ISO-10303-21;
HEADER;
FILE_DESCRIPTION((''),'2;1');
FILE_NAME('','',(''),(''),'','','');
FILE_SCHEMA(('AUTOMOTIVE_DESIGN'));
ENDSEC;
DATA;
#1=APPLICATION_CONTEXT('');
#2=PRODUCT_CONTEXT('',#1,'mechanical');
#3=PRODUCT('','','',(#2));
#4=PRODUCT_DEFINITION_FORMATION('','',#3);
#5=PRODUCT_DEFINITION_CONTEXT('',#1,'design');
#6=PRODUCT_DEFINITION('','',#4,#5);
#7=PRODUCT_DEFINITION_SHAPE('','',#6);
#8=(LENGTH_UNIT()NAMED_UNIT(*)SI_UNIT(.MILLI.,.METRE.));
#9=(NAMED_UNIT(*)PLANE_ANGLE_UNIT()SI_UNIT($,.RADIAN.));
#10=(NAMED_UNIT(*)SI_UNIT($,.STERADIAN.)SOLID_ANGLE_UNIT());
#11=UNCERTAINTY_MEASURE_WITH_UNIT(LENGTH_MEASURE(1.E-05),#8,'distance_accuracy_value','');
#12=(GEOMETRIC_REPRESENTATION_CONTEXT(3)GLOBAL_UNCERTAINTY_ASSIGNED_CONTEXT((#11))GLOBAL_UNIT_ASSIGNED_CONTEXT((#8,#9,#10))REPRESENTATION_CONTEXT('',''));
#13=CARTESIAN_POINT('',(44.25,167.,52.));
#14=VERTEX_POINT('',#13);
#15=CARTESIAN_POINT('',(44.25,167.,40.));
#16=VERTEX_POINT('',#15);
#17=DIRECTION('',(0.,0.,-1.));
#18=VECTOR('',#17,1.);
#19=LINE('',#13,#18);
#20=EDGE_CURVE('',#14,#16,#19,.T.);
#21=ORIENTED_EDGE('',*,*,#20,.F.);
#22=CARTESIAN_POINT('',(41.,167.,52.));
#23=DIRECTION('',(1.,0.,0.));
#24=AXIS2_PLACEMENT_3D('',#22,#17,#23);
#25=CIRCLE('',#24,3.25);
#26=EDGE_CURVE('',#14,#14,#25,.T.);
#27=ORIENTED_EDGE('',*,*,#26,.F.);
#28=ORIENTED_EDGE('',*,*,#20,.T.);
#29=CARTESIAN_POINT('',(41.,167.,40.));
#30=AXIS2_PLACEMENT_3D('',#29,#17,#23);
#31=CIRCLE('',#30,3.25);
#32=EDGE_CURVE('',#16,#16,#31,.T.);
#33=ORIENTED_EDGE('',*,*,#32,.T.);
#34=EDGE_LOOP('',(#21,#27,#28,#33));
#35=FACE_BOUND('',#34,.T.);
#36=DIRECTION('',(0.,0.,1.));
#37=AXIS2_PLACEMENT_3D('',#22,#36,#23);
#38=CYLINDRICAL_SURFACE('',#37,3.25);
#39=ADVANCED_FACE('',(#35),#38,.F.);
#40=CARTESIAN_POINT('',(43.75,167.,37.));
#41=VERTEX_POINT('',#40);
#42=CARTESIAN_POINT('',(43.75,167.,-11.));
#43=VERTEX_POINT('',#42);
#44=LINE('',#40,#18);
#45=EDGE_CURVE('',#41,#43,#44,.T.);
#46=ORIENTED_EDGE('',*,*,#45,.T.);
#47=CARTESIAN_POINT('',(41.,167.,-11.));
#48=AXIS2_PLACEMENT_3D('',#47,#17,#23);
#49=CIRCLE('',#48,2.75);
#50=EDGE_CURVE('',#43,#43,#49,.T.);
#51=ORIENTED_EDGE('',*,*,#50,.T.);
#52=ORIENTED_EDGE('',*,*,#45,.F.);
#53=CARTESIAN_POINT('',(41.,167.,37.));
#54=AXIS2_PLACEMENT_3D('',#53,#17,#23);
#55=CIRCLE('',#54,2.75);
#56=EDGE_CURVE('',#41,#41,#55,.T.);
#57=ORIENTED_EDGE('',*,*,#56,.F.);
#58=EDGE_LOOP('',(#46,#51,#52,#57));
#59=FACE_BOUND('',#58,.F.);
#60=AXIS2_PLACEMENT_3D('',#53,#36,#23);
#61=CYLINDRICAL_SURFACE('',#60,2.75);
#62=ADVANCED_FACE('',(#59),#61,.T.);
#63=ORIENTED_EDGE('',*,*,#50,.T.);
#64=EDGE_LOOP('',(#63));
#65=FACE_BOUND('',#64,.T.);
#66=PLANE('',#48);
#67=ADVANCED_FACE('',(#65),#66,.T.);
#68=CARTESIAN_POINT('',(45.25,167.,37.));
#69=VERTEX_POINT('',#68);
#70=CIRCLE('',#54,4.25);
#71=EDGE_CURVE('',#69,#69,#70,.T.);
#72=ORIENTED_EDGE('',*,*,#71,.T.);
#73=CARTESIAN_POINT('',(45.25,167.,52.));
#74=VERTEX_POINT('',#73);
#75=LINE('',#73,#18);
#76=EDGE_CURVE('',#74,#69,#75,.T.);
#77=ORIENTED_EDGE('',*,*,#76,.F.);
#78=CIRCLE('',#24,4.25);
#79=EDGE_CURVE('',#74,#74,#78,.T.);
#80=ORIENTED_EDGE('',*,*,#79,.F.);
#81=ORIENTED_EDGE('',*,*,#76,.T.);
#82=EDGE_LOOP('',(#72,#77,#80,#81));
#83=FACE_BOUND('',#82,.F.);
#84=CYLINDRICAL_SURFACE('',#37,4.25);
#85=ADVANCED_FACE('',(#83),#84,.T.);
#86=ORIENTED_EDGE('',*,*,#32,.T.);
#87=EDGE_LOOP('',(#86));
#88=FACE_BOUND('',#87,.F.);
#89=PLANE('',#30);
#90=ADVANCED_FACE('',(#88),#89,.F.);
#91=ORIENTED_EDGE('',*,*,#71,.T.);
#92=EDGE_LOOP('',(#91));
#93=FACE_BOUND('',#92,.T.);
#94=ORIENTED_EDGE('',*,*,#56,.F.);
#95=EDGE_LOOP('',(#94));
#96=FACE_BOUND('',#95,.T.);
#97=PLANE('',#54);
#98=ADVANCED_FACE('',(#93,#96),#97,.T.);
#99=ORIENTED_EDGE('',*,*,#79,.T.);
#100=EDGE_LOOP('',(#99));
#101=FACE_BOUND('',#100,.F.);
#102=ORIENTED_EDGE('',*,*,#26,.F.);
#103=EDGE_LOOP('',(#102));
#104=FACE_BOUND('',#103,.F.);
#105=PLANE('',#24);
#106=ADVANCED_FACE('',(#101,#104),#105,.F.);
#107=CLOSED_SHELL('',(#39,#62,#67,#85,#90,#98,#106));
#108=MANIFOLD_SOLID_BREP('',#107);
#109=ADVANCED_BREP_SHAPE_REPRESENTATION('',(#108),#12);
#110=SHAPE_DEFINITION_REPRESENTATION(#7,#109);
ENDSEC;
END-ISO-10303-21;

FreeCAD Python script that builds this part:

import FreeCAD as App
import Part
import Sketcher

V = App.Vector

doc = App.newDocument("Part")
body = doc.addObject("PartDesign::Body", "Body")

sketch1 = body.newObject("Sketcher::SketchObject", "Sketch")
sketch1.AttachmentSupport = (doc.getObject("XY_Plane"), [""])
sketch1.MapMode = "FlatFace"
sketch1.addGeometry(Part.Circle(V(0, 0, 0), V(0, 0, 1), 3.25), False)
sketch1.addConstraint([
    Sketcher.Constraint("Coincident", 0, 3, -1, 1),
    Sketcher.Constraint("Diameter", 0, 6.5),
])
pad1 = body.newObject("PartDesign::Pad", "Pad")
pad1.Profile = sketch1
pad1.Length = 12
body2 = doc.addObject("PartDesign::Body", "Body001")

sketch2 = body2.newObject("Sketcher::SketchObject", "Sketch001")
sketch2.AttachmentSupport = (doc.getObject("XY_Plane001"), [""])
sketch2.MapMode = "FlatFace"
sketch2.addGeometry(Part.Circle(V(0, 0, 0), V(0, 0, 1), 4.25), False)
sketch2.addConstraint([
    Sketcher.Constraint("Coincident", 0, 3, -1, 1),
    Sketcher.Constraint("Diameter", 0, 8.5),
])
pad2 = body2.newObject("PartDesign::Pad", "Pad001")
pad2.Profile = sketch2
pad2.Length = 15
doc.recompute()

boolean = body2.newObject("PartDesign::Boolean", "Boolean")
boolean.Type = "Cut"
boolean.addObjects([body])
body3 = doc.addObject("PartDesign::Body", "Body002")

sketch3 = body3.newObject("Sketcher::SketchObject", "Sketch002")
sketch3.AttachmentSupport = (doc.getObject("XY_Plane002"), [""])
sketch3.MapMode = "FlatFace"
sketch3.AttachmentOffset = App.Placement(V(0, 0, 15), App.Rotation())
sketch3.addGeometry(Part.Circle(V(0, 0, 0), V(0, 0, 1), 2.75), False)
sketch3.addConstraint([
    Sketcher.Constraint("Coincident", 0, 3, -1, 1),
    Sketcher.Constraint("Diameter", 0, 5.5),
])
pad3 = body3.newObject("PartDesign::Pad", "Pad002")
pad3.Profile = sketch3
pad3.Length = 48
doc.recompute()

boolean2 = body3.newObject("PartDesign::Boolean", "Boolean001")
boolean2.Type = "Fuse"
boolean2.addObjects([body2])
body4 = doc.addObject("PartDesign::Body", "Body003")
doc.recompute()

body3.Placement = App.Placement(V(41, 167, 52), App.Rotation(V(1, 0, 0), 180))
boolean3 = body4.newObject("PartDesign::Boolean", "Boolean002")
boolean3.Type = "Fuse"
boolean3.addObjects([body3])

doc.recompute()
